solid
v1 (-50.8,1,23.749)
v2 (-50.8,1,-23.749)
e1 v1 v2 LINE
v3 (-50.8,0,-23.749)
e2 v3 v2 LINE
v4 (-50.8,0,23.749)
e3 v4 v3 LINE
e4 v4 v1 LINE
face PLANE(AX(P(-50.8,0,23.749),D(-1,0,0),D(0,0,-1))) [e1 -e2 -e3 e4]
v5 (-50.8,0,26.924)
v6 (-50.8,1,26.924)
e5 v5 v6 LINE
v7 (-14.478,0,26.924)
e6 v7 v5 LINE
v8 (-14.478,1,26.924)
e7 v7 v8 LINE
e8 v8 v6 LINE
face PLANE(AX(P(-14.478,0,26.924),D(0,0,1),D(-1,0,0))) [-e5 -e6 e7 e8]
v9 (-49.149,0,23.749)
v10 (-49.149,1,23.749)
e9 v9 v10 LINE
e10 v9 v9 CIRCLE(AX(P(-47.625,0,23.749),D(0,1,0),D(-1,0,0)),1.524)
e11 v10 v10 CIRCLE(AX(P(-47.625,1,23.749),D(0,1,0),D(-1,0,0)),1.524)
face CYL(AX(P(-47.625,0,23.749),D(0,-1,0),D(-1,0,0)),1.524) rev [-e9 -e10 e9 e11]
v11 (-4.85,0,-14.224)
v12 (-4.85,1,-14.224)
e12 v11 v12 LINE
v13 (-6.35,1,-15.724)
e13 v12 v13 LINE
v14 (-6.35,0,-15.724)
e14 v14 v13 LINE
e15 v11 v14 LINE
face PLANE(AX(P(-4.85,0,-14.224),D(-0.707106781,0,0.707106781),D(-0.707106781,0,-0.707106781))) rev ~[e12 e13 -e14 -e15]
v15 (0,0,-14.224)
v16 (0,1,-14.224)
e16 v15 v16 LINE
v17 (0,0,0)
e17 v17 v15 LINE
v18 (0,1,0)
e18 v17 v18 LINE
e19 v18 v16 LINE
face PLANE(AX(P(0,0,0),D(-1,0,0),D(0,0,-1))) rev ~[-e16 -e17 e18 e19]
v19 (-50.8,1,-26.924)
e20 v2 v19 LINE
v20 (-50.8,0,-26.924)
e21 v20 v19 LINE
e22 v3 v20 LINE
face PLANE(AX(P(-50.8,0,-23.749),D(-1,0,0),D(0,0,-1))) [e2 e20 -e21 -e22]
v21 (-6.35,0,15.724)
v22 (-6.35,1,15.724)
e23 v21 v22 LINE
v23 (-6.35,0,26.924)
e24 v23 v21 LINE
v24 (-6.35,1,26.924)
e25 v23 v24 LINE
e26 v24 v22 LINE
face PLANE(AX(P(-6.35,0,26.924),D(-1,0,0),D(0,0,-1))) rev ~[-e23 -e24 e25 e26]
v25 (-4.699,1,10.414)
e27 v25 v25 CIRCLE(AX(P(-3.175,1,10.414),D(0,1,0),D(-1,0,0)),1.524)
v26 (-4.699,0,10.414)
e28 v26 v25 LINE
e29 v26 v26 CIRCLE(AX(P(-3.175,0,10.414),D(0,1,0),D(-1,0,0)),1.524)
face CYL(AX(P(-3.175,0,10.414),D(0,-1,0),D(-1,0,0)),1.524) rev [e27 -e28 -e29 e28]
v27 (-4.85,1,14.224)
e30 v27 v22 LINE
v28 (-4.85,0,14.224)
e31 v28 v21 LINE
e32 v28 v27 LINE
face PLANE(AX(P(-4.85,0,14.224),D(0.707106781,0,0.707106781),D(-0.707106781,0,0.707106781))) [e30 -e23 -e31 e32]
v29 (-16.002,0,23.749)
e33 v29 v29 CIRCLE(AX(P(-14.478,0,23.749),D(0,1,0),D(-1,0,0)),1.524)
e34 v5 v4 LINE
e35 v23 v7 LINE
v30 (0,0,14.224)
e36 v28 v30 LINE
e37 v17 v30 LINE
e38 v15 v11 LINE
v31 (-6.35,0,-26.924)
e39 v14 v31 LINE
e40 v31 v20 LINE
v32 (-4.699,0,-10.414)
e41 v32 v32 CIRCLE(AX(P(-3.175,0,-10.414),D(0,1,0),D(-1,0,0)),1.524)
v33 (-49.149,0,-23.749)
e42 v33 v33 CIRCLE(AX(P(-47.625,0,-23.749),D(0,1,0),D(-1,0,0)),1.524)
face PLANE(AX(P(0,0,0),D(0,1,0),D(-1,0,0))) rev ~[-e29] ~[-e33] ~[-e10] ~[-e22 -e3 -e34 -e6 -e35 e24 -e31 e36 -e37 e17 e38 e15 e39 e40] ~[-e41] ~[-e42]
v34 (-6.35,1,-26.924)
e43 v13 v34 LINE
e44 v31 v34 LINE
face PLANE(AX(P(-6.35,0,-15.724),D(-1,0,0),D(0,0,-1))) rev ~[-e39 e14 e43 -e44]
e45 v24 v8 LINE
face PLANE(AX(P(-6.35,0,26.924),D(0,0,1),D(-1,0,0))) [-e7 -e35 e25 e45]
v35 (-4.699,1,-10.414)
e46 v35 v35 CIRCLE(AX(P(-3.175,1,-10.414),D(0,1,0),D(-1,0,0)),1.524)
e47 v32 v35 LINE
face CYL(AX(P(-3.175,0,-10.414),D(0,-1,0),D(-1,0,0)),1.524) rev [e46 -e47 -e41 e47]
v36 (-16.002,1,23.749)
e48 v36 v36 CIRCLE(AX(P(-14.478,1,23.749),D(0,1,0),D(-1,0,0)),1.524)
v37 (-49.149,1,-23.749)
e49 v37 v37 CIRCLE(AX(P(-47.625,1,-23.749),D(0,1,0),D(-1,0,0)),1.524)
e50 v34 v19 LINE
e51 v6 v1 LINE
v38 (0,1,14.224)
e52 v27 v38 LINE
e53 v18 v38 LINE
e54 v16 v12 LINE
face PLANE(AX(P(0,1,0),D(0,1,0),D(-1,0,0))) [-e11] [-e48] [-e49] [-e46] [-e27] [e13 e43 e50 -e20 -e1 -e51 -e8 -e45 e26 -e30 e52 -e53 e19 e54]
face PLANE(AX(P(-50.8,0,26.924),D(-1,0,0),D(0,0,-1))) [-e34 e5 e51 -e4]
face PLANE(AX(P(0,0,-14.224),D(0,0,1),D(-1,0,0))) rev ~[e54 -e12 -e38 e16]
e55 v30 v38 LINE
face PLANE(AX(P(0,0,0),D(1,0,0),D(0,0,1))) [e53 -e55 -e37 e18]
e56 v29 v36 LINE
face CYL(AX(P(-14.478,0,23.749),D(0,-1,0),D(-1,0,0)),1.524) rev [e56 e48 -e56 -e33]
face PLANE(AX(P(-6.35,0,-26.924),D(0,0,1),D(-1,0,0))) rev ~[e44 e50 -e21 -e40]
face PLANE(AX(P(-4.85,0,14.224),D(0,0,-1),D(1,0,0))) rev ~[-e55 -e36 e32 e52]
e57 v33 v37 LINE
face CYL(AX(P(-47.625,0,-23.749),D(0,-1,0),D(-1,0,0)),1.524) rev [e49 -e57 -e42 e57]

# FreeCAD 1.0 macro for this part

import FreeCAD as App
import Part
import Sketcher

V = App.Vector
Q = App.Units.Quantity


def add_polygon(sketch, points):
    """Adds a closed chain of lines whose ends are joined by coincident constraints."""
    first, n = sketch.GeometryCount, len(points)
    for a, b in zip(points, points[1:] + points[:1]):
        sketch.addGeometry(Part.LineSegment(App.Vector(*a, 0), App.Vector(*b, 0)), False)
    for i in range(n):
        sketch.addConstraint(Sketcher.Constraint("Coincident", first + i, 2, first + (i + 1) % n, 1))

doc = App.newDocument("Part")
body = doc.addObject("PartDesign::Body", "Body")

sketch1 = body.newObject("Sketcher::SketchObject", "Sketch")
sketch1.AttachmentSupport = (doc.getObject("XZ_Plane"), [""])
sketch1.MapMode = "FlatFace"
add_polygon(sketch1, [(-50.8, -26.9), (-50.8, 26.9), (-6.3, 26.9), (-6.3, 15.7), (-4.8, 14.2), (0, 14.2), (0, -14.2), (-4.8, -14.2), (-6.3, -15.7), (-6.3, -26.9)])
sketch1.addGeometry(Part.Circle(V(-3.2, -10.4, 0), V(0, 0, 1), 1.5), False)
sketch1.addGeometry(Part.Circle(V(-47.6, -23.7, 0), V(0, 0, 1), 1.5), False)
sketch1.addGeometry(Part.Circle(V(-3.2, 10.4, 0), V(0, 0, 1), 1.5), False)
sketch1.addGeometry(Part.Circle(V(-14.5, 23.7, 0), V(0, 0, 1), 1.5), False)
sketch1.addGeometry(Part.Circle(V(-47.6, 23.7, 0), V(0, 0, 1), 1.5), False)
sketch1.addConstraint(Sketcher.Constraint("Vertical", 0))
sketch1.addConstraint(Sketcher.Constraint("Horizontal", 1))
sketch1.addConstraint(Sketcher.Constraint("Vertical", 2))
sketch1.addConstraint(Sketcher.Constraint("Horizontal", 4))
sketch1.addConstraint(Sketcher.Constraint("Vertical", 5))
sketch1.addConstraint(Sketcher.Constraint("Horizontal", 6))
sketch1.addConstraint(Sketcher.Constraint("Vertical", 8))
sketch1.addConstraint(Sketcher.Constraint("Horizontal", 9))
sketch1.addConstraint(Sketcher.Constraint("Equal", 10, 11))
sketch1.addConstraint(Sketcher.Constraint("Equal", 11, 12))
sketch1.addConstraint(Sketcher.Constraint("Equal", 12, 13))
sketch1.addConstraint(Sketcher.Constraint("Equal", 13, 14))
sketch1.addConstraint(Sketcher.Constraint("Symmetric", 4, 2, 5, 2, -1, 1))
sketch1.addConstraint(Sketcher.Constraint("Symmetric", 10, 3, 12, 3, -1))
sketch1.addConstraint(Sketcher.Constraint("Symmetric", 11, 3, 14, 3, -1))
sketch1.addConstraint(Sketcher.Constraint("Symmetric", 2, 2, 7, 2, -1))
sketch1.addConstraint(Sketcher.Constraint("Perpendicular", 3, 7))
sketch1.addConstraint(Sketcher.Constraint("Horizontal", 13, 3, 14, 3))
sketch1.addConstraint(Sketcher.Constraint("Vertical", 3, 2, 6, 2))
sketch1.addConstraint(Sketcher.Constraint("Equal", 2, 8))
sketch1.addConstraint(Sketcher.Constraint("Diameter", 10, Q("0.12 in")))
sketch1.addConstraint(Sketcher.Constraint("DistanceX", 0, 2, -1, 1, Q("2 in")))
sketch1.addConstraint(Sketcher.Constraint("DistanceX", 1, 1, 1, 2, Q("1.75 in")))
sketch1.addConstraint(Sketcher.Constraint("DistanceY", 0, 1, 0, 2, Q("2.12 in")))
sketch1.addConstraint(Sketcher.Constraint("DistanceY", 5, 2, 5, 1, Q("1.12 in")))
sketch1.addConstraint(Sketcher.Constraint("DistanceY", 10, 3, -1, 1, Q("0.41 in")))
sketch1.addConstraint(Sketcher.Constraint("DistanceX", 13, 3, -1, 1, Q("0.57 in")))
sketch1.addConstraint(Sketcher.Constraint("DistanceX", 11, 3, 10, 3, Q("1.75 in")))
sketch1.addConstraint(Sketcher.Constraint("DistanceY", 11, 3, 13, 3, Q("1.87 in")))
sketch1.addConstraint(Sketcher.Constraint("DistanceX", 10, 3, -1, 1, Q("0.125 in")))
sketch1.addConstraint(Sketcher.Constraint("DistanceX", 4, 1, 4, 2, 4.85))
pad1 = body.newObject("PartDesign::Pad", "Pad")
pad1.Profile = sketch1
pad1.Length = 1
pad1.Reversed = True

doc.recompute()
